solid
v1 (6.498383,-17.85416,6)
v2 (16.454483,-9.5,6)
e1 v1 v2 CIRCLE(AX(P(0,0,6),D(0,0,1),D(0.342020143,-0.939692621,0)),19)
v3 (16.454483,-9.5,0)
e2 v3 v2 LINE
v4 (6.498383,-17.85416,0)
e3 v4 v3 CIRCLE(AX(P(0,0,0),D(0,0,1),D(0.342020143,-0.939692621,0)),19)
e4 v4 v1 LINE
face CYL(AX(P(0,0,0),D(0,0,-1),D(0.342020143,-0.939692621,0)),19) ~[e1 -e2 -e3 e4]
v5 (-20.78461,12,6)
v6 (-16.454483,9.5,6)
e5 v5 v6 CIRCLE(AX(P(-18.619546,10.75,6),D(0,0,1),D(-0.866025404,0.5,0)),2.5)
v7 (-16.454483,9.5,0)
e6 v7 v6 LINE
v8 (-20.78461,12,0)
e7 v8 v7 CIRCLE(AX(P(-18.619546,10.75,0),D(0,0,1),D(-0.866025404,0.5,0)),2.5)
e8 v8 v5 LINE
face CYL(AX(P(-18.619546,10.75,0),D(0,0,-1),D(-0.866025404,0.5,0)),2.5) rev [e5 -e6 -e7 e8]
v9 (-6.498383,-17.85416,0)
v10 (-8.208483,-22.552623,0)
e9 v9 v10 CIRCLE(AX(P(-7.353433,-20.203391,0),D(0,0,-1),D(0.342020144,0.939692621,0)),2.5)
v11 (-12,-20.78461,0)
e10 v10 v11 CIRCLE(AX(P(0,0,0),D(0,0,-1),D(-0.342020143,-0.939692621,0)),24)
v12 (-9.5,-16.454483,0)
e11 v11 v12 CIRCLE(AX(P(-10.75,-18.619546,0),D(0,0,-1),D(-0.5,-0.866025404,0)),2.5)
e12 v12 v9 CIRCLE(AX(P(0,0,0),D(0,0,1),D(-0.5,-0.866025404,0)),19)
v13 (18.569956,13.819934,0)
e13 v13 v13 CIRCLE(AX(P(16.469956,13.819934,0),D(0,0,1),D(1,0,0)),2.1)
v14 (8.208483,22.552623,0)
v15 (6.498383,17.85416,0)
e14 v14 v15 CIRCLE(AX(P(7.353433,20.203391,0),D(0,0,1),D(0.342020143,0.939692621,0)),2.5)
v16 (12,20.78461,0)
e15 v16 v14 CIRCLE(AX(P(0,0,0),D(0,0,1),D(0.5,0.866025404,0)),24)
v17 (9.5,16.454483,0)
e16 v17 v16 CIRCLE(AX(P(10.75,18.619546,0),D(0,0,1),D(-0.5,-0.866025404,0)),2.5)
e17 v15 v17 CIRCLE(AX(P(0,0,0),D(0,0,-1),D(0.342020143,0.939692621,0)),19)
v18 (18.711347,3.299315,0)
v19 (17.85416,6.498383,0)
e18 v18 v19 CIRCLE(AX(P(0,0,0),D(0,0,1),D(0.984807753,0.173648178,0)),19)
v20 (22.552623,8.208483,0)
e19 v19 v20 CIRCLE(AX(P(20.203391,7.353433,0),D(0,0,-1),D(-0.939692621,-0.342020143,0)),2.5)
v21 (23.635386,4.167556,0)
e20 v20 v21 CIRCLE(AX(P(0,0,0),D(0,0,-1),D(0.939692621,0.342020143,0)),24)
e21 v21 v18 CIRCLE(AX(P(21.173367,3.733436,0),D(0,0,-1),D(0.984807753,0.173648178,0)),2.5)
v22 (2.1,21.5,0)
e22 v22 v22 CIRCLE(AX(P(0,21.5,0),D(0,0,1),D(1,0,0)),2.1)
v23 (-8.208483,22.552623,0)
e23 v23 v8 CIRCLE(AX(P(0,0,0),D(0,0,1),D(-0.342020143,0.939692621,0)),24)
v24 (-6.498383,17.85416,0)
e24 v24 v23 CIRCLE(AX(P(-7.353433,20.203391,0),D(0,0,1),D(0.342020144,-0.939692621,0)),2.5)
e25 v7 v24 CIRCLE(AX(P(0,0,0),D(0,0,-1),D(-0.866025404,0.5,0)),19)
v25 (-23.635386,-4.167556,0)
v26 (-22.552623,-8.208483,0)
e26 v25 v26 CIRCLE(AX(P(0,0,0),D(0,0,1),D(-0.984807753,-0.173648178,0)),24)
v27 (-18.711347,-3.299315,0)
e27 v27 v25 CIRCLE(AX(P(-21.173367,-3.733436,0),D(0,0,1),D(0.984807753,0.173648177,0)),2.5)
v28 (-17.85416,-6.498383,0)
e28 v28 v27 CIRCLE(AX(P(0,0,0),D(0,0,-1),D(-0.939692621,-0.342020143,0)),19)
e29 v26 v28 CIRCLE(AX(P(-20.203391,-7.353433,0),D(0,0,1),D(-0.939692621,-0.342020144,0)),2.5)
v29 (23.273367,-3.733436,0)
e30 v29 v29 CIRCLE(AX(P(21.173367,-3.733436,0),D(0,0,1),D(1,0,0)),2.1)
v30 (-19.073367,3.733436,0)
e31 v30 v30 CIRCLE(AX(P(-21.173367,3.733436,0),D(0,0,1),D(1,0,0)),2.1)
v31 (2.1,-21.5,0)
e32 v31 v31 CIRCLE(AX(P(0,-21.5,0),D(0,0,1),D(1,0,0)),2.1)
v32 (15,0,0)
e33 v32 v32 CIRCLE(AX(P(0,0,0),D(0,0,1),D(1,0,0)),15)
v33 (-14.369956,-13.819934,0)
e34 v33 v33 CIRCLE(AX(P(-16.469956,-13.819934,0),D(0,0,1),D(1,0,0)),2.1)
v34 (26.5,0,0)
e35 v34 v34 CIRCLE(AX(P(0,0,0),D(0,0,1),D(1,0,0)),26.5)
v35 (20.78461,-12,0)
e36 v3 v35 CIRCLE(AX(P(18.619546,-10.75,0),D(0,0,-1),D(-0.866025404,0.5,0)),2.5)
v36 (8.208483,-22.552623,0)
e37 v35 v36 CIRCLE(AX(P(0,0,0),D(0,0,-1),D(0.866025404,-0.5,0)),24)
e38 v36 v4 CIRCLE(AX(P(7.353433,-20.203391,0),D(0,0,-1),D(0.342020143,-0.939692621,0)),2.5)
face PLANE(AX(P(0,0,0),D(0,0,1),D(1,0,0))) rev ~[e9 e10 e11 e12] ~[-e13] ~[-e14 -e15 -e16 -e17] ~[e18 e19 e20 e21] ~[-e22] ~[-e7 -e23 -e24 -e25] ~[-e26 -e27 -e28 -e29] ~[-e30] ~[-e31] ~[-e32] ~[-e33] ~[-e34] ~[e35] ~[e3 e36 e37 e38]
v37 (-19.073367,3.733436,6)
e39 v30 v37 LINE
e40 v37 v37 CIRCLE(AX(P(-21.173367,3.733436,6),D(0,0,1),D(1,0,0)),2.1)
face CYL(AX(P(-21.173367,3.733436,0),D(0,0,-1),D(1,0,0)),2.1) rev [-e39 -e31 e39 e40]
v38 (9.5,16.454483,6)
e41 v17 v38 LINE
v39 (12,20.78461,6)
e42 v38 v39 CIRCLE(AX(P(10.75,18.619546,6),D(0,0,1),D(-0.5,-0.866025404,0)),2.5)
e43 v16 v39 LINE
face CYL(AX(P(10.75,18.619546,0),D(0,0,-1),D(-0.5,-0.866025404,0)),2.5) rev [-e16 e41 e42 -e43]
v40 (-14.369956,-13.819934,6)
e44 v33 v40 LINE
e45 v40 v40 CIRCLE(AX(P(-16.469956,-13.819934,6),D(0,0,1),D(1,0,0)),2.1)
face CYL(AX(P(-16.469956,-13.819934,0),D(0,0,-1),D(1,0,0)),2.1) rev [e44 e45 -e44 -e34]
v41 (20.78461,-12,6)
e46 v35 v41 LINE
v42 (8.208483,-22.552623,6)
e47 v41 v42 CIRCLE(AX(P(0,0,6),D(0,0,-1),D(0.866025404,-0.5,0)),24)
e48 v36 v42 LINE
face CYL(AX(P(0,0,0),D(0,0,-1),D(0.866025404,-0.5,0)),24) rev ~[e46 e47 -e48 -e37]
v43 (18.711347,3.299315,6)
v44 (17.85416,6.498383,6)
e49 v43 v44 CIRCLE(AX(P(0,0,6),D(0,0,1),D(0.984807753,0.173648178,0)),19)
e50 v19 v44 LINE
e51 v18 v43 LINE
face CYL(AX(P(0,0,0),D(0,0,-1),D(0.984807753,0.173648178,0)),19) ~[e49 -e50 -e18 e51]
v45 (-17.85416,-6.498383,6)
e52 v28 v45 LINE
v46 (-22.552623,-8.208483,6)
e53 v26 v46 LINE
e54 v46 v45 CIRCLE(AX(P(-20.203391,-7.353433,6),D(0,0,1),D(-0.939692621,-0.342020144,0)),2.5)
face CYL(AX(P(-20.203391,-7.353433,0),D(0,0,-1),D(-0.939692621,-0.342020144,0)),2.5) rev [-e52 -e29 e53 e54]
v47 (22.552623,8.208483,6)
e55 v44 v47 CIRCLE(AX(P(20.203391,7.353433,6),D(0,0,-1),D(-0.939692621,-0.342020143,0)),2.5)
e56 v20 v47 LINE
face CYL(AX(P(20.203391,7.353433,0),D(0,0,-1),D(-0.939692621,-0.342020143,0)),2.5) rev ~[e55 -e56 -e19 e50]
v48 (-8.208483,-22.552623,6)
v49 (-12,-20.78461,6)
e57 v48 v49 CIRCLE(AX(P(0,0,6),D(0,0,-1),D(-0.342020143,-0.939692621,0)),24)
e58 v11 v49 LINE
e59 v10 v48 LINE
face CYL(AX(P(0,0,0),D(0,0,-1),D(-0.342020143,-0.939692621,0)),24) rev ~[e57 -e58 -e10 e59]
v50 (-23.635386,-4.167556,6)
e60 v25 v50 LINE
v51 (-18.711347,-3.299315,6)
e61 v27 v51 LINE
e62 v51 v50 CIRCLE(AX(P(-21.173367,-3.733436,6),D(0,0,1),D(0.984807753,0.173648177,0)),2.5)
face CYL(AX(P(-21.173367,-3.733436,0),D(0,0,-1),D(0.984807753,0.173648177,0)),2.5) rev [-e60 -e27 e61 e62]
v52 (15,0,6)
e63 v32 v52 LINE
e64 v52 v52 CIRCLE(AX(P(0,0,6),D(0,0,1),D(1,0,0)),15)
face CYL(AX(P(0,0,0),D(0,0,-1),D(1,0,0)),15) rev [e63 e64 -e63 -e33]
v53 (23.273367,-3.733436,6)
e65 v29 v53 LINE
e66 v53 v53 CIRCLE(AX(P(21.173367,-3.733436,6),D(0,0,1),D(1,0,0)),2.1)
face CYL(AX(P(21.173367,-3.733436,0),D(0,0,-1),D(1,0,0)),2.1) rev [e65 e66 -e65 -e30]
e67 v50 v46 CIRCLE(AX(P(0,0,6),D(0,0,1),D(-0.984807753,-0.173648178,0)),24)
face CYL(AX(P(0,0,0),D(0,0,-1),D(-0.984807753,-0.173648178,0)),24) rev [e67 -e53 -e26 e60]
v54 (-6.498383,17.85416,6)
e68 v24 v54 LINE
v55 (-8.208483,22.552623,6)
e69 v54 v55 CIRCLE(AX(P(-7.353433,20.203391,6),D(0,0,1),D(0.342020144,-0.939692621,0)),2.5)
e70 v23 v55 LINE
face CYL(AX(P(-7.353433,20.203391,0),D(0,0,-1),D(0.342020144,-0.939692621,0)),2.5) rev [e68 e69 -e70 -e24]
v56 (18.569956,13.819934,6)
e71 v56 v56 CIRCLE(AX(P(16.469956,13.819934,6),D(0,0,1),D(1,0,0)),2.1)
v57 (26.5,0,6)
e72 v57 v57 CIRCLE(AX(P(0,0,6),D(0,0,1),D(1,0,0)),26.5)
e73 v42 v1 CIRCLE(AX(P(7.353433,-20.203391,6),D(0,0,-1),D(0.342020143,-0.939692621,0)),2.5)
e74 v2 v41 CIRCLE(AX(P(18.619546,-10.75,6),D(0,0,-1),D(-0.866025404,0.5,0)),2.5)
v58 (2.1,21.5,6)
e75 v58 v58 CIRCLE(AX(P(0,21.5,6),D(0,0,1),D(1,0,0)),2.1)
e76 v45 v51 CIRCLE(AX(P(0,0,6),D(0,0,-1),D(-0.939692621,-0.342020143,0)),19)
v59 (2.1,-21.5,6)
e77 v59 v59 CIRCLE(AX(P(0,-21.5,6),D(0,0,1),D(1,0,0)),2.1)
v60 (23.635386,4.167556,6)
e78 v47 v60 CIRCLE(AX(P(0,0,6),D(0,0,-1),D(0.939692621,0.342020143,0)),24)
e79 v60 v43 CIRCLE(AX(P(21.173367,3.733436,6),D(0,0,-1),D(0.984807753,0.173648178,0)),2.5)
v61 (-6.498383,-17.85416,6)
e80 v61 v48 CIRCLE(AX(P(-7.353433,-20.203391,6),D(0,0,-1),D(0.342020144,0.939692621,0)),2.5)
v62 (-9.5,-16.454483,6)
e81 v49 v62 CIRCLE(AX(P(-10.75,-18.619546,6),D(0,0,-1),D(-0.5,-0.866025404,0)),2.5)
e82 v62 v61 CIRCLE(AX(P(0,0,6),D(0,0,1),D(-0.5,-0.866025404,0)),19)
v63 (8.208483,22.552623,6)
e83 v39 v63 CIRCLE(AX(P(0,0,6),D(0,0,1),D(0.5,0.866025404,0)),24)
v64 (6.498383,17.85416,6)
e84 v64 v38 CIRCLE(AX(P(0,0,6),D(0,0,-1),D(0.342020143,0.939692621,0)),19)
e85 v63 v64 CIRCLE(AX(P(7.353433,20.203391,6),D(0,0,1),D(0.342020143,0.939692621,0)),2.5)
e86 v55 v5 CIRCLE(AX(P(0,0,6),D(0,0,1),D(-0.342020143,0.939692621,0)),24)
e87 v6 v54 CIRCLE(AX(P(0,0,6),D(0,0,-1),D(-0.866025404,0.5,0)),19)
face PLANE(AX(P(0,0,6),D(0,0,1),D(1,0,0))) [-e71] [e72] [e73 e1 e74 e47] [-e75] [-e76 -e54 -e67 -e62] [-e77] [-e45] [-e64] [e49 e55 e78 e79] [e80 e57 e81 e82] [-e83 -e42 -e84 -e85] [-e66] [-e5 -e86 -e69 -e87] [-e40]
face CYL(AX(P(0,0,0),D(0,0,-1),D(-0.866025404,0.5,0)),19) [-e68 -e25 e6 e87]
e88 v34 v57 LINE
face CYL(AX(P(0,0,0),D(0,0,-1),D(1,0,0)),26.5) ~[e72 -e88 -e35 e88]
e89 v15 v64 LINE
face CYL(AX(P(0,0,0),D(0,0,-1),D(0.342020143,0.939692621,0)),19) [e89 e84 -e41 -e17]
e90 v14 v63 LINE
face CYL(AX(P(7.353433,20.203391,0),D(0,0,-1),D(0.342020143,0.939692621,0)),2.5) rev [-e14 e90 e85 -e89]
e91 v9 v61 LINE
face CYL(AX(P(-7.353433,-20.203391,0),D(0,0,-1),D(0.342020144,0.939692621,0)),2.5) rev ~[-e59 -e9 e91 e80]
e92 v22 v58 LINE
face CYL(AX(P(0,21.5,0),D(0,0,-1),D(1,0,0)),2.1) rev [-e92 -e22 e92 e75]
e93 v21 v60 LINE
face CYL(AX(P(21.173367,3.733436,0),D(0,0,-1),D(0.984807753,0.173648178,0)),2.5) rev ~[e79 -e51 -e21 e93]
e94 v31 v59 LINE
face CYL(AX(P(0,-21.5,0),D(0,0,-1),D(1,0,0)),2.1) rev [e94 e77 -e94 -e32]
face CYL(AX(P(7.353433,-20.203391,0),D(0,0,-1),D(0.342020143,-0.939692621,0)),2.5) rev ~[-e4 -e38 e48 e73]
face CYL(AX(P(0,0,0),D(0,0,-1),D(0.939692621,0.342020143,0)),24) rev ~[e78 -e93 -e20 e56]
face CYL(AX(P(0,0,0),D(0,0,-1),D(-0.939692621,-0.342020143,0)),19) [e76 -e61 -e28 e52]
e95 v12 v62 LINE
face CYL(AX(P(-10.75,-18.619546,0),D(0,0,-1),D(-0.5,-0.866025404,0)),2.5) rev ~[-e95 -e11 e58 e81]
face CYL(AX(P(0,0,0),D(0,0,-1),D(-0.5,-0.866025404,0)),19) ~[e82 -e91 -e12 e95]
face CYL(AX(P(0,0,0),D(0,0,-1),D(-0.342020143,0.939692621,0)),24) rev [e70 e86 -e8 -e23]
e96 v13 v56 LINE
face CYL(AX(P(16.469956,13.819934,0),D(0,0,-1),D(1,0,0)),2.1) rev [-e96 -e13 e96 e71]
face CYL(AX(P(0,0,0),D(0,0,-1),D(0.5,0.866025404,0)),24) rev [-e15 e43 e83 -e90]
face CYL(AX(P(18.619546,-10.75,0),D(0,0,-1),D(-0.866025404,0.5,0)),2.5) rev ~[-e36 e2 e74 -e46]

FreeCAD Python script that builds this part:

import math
import FreeCAD as App
import Part
import Sketcher
from FreeCAD import Vector

doc = App.newDocument("Part")
body = doc.addObject("PartDesign::Body", "Body")

sketch1 = body.newObject("Sketcher::SketchObject", "Sketch")
sketch1.AttachmentSupport = (doc.getObject("XY_Plane"), [""])
sketch1.MapMode = "FlatFace"
sketch1.addGeometry([
    Part.Circle(Vector(0, 0, 0), Vector(0, 0, 1), 26.5),
    Part.Circle(Vector(-16.469956, -13.819934, 0), Vector(0, 0, 1), 2.1),
    Part.ArcOfCircle(Part.Circle(Vector(-10.75, -18.619546, 0), Vector(0, 0, 1), 2.5), math.radians(60), math.radians(240)),
    Part.ArcOfCircle(Part.Circle(Vector(0, 0, 0), Vector(0, 0, 1), 19), math.radians(-120), math.radians(-110)),
    Part.ArcOfCircle(Part.Circle(Vector(-7.353433, -20.203391, 0), Vector(0, 0, 1), 2.5), math.radians(-110), math.radians(70)),
    Part.ArcOfCircle(Part.Circle(Vector(0, 0, 0), Vector(0, 0, 1), 24), math.radians(-120), math.radians(-110)),
    Part.ArcOfCircle(Part.Circle(Vector(0, 0, 0), Vector(0, 0, 1), 24), math.radians(-170), math.radians(-160)),
    Part.ArcOfCircle(Part.Circle(Vector(-21.173367, -3.733436, 0), Vector(0, 0, 1), 2.5), math.radians(10), math.radians(190)),
    Part.ArcOfCircle(Part.Circle(Vector(0, 0, 0), Vector(0, 0, 1), 19), math.radians(-170), math.radians(-160)),
    Part.ArcOfCircle(Part.Circle(Vector(-20.203391, -7.353433, 0), Vector(0, 0, 1), 2.5), math.radians(-160), math.radians(20)),
    Part.Circle(Vector(0, -21.5, 0), Vector(0, 0, 1), 2.1),
    Part.ArcOfCircle(Part.Circle(Vector(7.353433, -20.203391, 0), Vector(0, 0, 1), 2.5), math.radians(110), math.radians(290)),
    Part.ArcOfCircle(Part.Circle(Vector(0, 0, 0), Vector(0, 0, 1), 19), math.radians(-70), math.radians(-30)),
    Part.ArcOfCircle(Part.Circle(Vector(18.619546, -10.75, 0), Vector(0, 0, 1), 2.5), math.radians(-30), math.radians(150)),
    Part.ArcOfCircle(Part.Circle(Vector(0, 0, 0), Vector(0, 0, 1), 24), math.radians(-70), math.radians(-30)),
    Part.Circle(Vector(21.173367, -3.733436, 0), Vector(0, 0, 1), 2.1),
    Part.Circle(Vector(-21.173367, 3.733436, 0), Vector(0, 0, 1), 2.1),
    Part.ArcOfCircle(Part.Circle(Vector(0, 0, 0), Vector(0, 0, 1), 24), math.radians(110), math.radians(150)),
    Part.ArcOfCircle(Part.Circle(Vector(-7.353433, 20.203391, 0), Vector(0, 0, 1), 2.5), math.radians(-70), math.radians(110)),
    Part.ArcOfCircle(Part.Circle(Vector(0, 0, 0), Vector(0, 0, 1), 19), math.radians(110), math.radians(150)),
    Part.ArcOfCircle(Part.Circle(Vector(-18.619546, 10.75, 0), Vector(0, 0, 1), 2.5), math.radians(150), math.radians(330)),
    Part.Circle(Vector(0, 0, 0), Vector(0, 0, 1), 15),
    Part.ArcOfCircle(Part.Circle(Vector(21.173367, 3.733436, 0), Vector(0, 0, 1), 2.5), math.radians(-170), math.radians(10)),
    Part.ArcOfCircle(Part.Circle(Vector(0, 0, 0), Vector(0, 0, 1), 19), math.radians(10), math.radians(20)),
    Part.ArcOfCircle(Part.Circle(Vector(20.203391, 7.353433, 0), Vector(0, 0, 1), 2.5), math.radians(20), math.radians(200)),
    Part.ArcOfCircle(Part.Circle(Vector(0, 0, 0), Vector(0, 0, 1), 24), math.radians(10), math.radians(20)),
    Part.Circle(Vector(0, 21.5, 0), Vector(0, 0, 1), 2.1),
    Part.ArcOfCircle(Part.Circle(Vector(0, 0, 0), Vector(0, 0, 1), 24), math.radians(60), math.radians(70)),
    Part.ArcOfCircle(Part.Circle(Vector(10.75, 18.619546, 0), Vector(0, 0, 1), 2.5), math.radians(-120), math.radians(60)),
    Part.ArcOfCircle(Part.Circle(Vector(0, 0, 0), Vector(0, 0, 1), 19), math.radians(60), math.radians(70)),
    Part.ArcOfCircle(Part.Circle(Vector(7.353433, 20.203391, 0), Vector(0, 0, 1), 2.5), math.radians(70), math.radians(250)),
    Part.Circle(Vector(16.469956, 13.819934, 0), Vector(0, 0, 1), 2.1),
], False)
sketch1.addConstraint([
    Sketcher.Constraint("Tangent", 2, 1, 3, 1),
    Sketcher.Constraint("Tangent", 3, 2, 4, 2),
    Sketcher.Constraint("Tangent", 4, 1, 5, 2),
    Sketcher.Constraint("Tangent", 5, 1, 2, 2),
    Sketcher.Constraint("Tangent", 6, 1, 7, 2),
    Sketcher.Constraint("Tangent", 7, 1, 8, 1),
    Sketcher.Constraint("Tangent", 8, 2, 9, 2),
    Sketcher.Constraint("Tangent", 9, 1, 6, 2),
    Sketcher.Constraint("Tangent", 11, 1, 12, 1),
    Sketcher.Constraint("Tangent", 12, 2, 13, 2),
    Sketcher.Constraint("Tangent", 13, 1, 14, 2),
    Sketcher.Constraint("Tangent", 14, 1, 11, 2),
    Sketcher.Constraint("Tangent", 17, 1, 18, 2),
    Sketcher.Constraint("Tangent", 18, 1, 19, 1),
    Sketcher.Constraint("Tangent", 19, 2, 20, 2),
    Sketcher.Constraint("Tangent", 20, 1, 17, 2),
    Sketcher.Constraint("Tangent", 22, 1, 23, 1),
    Sketcher.Constraint("Tangent", 23, 2, 24, 2),
    Sketcher.Constraint("Tangent", 24, 1, 25, 2),
    Sketcher.Constraint("Tangent", 25, 1, 22, 2),
    Sketcher.Constraint("Tangent", 27, 1, 28, 2),
    Sketcher.Constraint("Tangent", 28, 1, 29, 1),
    Sketcher.Constraint("Tangent", 29, 2, 30, 2),
    Sketcher.Constraint("Tangent", 30, 1, 27, 2),
    Sketcher.Constraint("Coincident", 0, 3, -1, 1),
    Sketcher.Constraint("Coincident", 3, 3, -1, 1),
    Sketcher.Constraint("Coincident", 5, 3, -1, 1),
    Sketcher.Constraint("Coincident", 6, 3, -1, 1),
    Sketcher.Constraint("Coincident", 8, 3, -1, 1),
    Sketcher.Constraint("Coincident", 12, 3, -1, 1),
    Sketcher.Constraint("Coincident", 14, 3, -1, 1),
    Sketcher.Constraint("Coincident", 17, 3, -1, 1),
    Sketcher.Constraint("Coincident", 19, 3, -1, 1),
    Sketcher.Constraint("Coincident", 21, 3, -1, 1),
    Sketcher.Constraint("Coincident", 23, 3, -1, 1),
    Sketcher.Constraint("Coincident", 25, 3, -1, 1),
    Sketcher.Constraint("Coincident", 27, 3, -1, 1),
    Sketcher.Constraint("Coincident", 29, 3, -1, 1),
    Sketcher.Constraint("Equal", 5, 6),
    Sketcher.Constraint("Equal", 4, 7),
    Sketcher.Constraint("Equal", 1, 10),
    Sketcher.Constraint("Equal", 9, 11),
    Sketcher.Constraint("Equal", 8, 12),
    Sketcher.Constraint("Equal", 10, 15),
    Sketcher.Constraint("Equal", 15, 16),
    Sketcher.Constraint("Equal", 14, 17),
    Sketcher.Constraint("Equal", 13, 18),
    Sketcher.Constraint("Equal", 20, 22),
    Sketcher.Constraint("Equal", 19, 23),
    Sketcher.Constraint("Equal", 16, 26),
    Sketcher.Constraint("Equal", 25, 27),
    Sketcher.Constraint("Equal", 24, 28),
    Sketcher.Constraint("Equal", 26, 31),
    Sketcher.Constraint("Symmetric", 15, 3, 16, 3, -1, 1),
    Sketcher.Constraint("Symmetric", 10, 3, 26, 3, -1, 1),
    Sketcher.Constraint("Symmetric", 1, 3, 31, 3, -1, 1),
    Sketcher.Constraint("Symmetric", 7, 3, 15, 3, -2),
    Sketcher.Constraint("PointOnObject", 10, 3, -2),
    Sketcher.Constraint("Horizontal", 4, 3, 11, 3),
    Sketcher.Constraint("Horizontal", 16, 3, 22, 3),
    Sketcher.Constraint("Horizontal", 18, 3, 30, 3),
    Sketcher.Constraint("Vertical", 4, 3, 18, 3),
    Sketcher.Constraint("Diameter", 0, 53.0),
    Sketcher.Constraint("Diameter", 21, 30.0),
    Sketcher.Constraint("Radius", 3, 19.0),
    Sketcher.Constraint("Radius", 5, 24.0),
    Sketcher.Constraint("Diameter", 1, 4.2),
    Sketcher.Constraint("DistanceX", 5, 1, -1, 1, 12.0),
    Sketcher.Constraint("DistanceY", 13, 1, -1, 1, 12.0),
    Sketcher.Constraint("DistanceY", -1, 1, 20, 1, 12.0),
    Sketcher.Constraint("DistanceX", -1, 1, 27, 1, 12.0),
    Sketcher.Constraint("DistanceY", 10, 3, -1, 1, 21.5),
    Sketcher.Constraint("DistanceX", 14, 1, 12, 2, 8.245999),
    Sketcher.Constraint("DistanceY", 1, 3, 9, 3, 6.466501),
    Sketcher.Constraint("DistanceY", 24, 3, 31, 3, 6.466501),
    Sketcher.Constraint("DistanceY", 9, 1, 8, 2, 1.710101),
    Sketcher.Constraint("DistanceX", 7, 3, 1, 3, 4.703411),
    Sketcher.Constraint("DistanceY", 2, 3, 7, 3, 14.88611),
])
pad1 = body.newObject("PartDesign::Pad", "Pad")
pad1.Profile = sketch1
pad1.Length = 6

doc.recompute()
